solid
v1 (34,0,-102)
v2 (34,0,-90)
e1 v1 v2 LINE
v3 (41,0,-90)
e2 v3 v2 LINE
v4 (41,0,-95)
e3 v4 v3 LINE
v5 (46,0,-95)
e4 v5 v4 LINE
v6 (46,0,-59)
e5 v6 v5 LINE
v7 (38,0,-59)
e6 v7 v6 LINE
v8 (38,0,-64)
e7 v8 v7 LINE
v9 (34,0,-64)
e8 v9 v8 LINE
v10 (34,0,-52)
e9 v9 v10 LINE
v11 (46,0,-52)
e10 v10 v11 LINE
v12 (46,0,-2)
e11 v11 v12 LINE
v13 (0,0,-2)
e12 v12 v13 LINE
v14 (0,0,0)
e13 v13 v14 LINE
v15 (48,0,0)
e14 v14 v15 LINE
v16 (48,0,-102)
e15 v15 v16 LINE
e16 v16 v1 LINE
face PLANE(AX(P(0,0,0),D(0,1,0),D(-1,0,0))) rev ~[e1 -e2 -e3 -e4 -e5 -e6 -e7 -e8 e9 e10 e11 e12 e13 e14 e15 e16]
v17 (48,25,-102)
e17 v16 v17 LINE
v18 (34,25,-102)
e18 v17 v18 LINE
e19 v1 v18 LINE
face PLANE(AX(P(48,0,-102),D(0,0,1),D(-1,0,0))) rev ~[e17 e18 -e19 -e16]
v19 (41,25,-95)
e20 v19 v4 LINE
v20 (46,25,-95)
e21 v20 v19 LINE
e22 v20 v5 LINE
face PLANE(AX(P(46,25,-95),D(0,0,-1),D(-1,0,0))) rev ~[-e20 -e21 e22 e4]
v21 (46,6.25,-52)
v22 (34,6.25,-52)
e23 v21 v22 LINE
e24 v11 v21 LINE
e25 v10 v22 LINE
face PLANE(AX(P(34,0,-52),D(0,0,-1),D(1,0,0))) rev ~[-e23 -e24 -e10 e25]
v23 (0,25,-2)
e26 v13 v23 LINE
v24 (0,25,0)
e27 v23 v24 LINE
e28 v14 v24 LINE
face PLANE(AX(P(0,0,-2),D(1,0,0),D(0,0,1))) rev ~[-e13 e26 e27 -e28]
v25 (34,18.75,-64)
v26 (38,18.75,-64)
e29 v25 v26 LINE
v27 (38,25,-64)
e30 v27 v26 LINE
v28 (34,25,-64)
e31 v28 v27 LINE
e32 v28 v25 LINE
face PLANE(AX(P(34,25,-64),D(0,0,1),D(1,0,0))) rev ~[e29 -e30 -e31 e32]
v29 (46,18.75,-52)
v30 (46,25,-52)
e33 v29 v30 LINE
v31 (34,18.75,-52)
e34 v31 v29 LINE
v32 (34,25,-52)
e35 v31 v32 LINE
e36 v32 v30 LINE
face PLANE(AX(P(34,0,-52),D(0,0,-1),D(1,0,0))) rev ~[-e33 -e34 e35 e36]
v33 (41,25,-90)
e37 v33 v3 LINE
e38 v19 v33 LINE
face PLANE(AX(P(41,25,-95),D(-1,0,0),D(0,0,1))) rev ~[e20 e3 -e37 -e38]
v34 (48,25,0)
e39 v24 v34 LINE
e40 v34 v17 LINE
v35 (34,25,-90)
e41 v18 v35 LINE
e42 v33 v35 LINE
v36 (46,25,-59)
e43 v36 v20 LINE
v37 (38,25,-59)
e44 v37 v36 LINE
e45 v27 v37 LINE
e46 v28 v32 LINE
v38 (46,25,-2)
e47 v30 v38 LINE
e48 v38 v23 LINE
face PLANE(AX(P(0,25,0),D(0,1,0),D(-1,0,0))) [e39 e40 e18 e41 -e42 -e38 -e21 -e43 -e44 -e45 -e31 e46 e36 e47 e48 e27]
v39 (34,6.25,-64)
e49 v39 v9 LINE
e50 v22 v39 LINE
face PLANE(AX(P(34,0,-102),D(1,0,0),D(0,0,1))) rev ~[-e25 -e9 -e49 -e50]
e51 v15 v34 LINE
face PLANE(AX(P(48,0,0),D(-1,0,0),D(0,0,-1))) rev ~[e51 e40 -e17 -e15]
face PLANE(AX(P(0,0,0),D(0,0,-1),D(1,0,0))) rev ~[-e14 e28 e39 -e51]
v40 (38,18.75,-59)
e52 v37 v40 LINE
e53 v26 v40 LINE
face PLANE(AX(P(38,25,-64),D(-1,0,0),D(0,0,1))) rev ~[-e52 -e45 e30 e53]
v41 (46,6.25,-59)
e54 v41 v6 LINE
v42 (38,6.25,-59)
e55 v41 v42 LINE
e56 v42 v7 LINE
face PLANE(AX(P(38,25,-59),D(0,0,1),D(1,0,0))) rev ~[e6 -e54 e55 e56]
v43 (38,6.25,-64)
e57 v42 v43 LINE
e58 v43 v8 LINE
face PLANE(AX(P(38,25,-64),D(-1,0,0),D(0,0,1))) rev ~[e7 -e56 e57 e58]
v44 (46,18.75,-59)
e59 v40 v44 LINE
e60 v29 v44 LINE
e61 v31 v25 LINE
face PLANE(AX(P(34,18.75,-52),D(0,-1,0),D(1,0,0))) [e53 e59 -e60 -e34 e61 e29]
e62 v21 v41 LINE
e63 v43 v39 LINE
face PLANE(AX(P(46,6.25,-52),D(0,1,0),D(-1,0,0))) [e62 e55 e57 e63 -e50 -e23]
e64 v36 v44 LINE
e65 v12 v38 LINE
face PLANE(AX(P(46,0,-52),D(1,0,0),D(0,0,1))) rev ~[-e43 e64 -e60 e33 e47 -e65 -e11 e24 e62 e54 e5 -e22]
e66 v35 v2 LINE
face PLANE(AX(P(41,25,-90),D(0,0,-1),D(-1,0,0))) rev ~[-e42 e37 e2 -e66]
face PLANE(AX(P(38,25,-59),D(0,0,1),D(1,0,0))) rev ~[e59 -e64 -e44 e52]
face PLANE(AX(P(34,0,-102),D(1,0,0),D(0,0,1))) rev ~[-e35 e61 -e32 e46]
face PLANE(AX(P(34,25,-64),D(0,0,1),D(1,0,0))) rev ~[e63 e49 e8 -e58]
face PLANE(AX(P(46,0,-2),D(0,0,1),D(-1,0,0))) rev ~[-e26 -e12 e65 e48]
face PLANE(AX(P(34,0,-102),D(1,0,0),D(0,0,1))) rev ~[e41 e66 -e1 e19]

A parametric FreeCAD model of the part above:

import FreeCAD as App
import Part
import Sketcher

doc = App.newDocument("Part")
body = doc.addObject("PartDesign::Body", "Body")

sketch1 = body.newObject("Sketcher::SketchObject", "Sketch")
sketch1.AttachmentSupport = (doc.getObject("XZ_Plane"), [""])
sketch1.MapMode = "FlatFace"
sketch1.addGeometry(Part.LineSegment(App.Vector(0, -2, 0), App.Vector(0, 0, 0)), False)
sketch1.addGeometry(Part.LineSegment(App.Vector(0, 0, 0), App.Vector(48, 0, 0)), False)
sketch1.addGeometry(Part.LineSegment(App.Vector(48, 0, 0), App.Vector(48, -102, 0)), False)
sketch1.addGeometry(Part.LineSegment(App.Vector(48, -102, 0), App.Vector(34, -102, 0)), False)
sketch1.addGeometry(Part.LineSegment(App.Vector(34, -102, 0), App.Vector(34, -52, 0)), False)
sketch1.addGeometry(Part.LineSegment(App.Vector(34, -52, 0), App.Vector(46, -52, 0)), False)
sketch1.addGeometry(Part.LineSegment(App.Vector(46, -52, 0), App.Vector(46, -2, 0)), False)
sketch1.addGeometry(Part.LineSegment(App.Vector(46, -2, 0), App.Vector(0, -2, 0)), False)
sketch1.addConstraint(Sketcher.Constraint("Coincident", 0, 2, 1, 1))
sketch1.addConstraint(Sketcher.Constraint("Coincident", 1, 2, 2, 1))
sketch1.addConstraint(Sketcher.Constraint("Coincident", 2, 2, 3, 1))
sketch1.addConstraint(Sketcher.Constraint("Coincident", 3, 2, 4, 1))
sketch1.addConstraint(Sketcher.Constraint("Coincident", 4, 2, 5, 1))
sketch1.addConstraint(Sketcher.Constraint("Coincident", 5, 2, 6, 1))
sketch1.addConstraint(Sketcher.Constraint("Coincident", 6, 2, 7, 1))
sketch1.addConstraint(Sketcher.Constraint("Coincident", 7, 2, 0, 1))
sketch1.addConstraint(Sketcher.Constraint("Vertical", 0))
sketch1.addConstraint(Sketcher.Constraint("Horizontal", 1))
sketch1.addConstraint(Sketcher.Constraint("Vertical", 2))
sketch1.addConstraint(Sketcher.Constraint("Horizontal", 3))
sketch1.addConstraint(Sketcher.Constraint("Vertical", 4))
sketch1.addConstraint(Sketcher.Constraint("Horizontal", 5))
sketch1.addConstraint(Sketcher.Constraint("Vertical", 6))
sketch1.addConstraint(Sketcher.Constraint("Horizontal", 7))
sketch1.addConstraint(Sketcher.Constraint("Coincident", 0, 2, -1, 1))
sketch1.addConstraint(Sketcher.Constraint("Equal", 4, 6))
sketch1.addConstraint(Sketcher.Constraint("DistanceX", 1, 1, 1, 2, 48.0))
sketch1.addConstraint(Sketcher.Constraint("DistanceX", 5, 1, 5, 2, 12.0))
sketch1.addConstraint(Sketcher.Constraint("DistanceX", 7, 2, 7, 1, 46.0))
sketch1.addConstraint(Sketcher.Constraint("DistanceY", 0, 1, 0, 2, 2.0))
sketch1.addConstraint(Sketcher.Constraint("DistanceY", 4, 1, 4, 2, 50.0))
pad1 = body.newObject("PartDesign::Pad", "Pad")
pad1.Profile = sketch1
pad1.Length = 25
pad1.Reversed = True

sketch2 = body.newObject("Sketcher::SketchObject", "Sketch001")
sketch2.AttachmentSupport = (doc.getObject("XZ_Plane"), [""])
sketch2.MapMode = "FlatFace"
sketch2.AttachmentOffset = App.Placement(App.Vector(0, 0, -25), App.Rotation())
sketch2.addGeometry(Part.LineSegment(App.Vector(41, -90, 0), App.Vector(34, -90, 0)), False)
sketch2.addGeometry(Part.LineSegment(App.Vector(34, -90, 0), App.Vector(34, -64, 0)), False)
sketch2.addGeometry(Part.LineSegment(App.Vector(34, -64, 0), App.Vector(38, -64, 0)), False)
sketch2.addGeometry(Part.LineSegment(App.Vector(38, -64, 0), App.Vector(38, -59, 0)), False)
sketch2.addGeometry(Part.LineSegment(App.Vector(38, -59, 0), App.Vector(46, -59, 0)), False)
sketch2.addGeometry(Part.LineSegment(App.Vector(46, -59, 0), App.Vector(46, -95, 0)), False)
sketch2.addGeometry(Part.LineSegment(App.Vector(46, -95, 0), App.Vector(41, -95, 0)), False)
sketch2.addGeometry(Part.LineSegment(App.Vector(41, -95, 0), App.Vector(41, -90, 0)), False)
sketch2.addConstraint(Sketcher.Constraint("Coincident", 0, 2, 1, 1))
sketch2.addConstraint(Sketcher.Constraint("Coincident", 1, 2, 2, 1))
sketch2.addConstraint(Sketcher.Constraint("Coincident", 2, 2, 3, 1))
sketch2.addConstraint(Sketcher.Constraint("Coincident", 3, 2, 4, 1))
sketch2.addConstraint(Sketcher.Constraint("Coincident", 4, 2, 5, 1))
sketch2.addConstraint(Sketcher.Constraint("Coincident", 5, 2, 6, 1))
sketch2.addConstraint(Sketcher.Constraint("Coincident", 6, 2, 7, 1))
sketch2.addConstraint(Sketcher.Constraint("Coincident", 7, 2, 0, 1))
sketch2.addConstraint(Sketcher.Constraint("Horizontal", 0))
sketch2.addConstraint(Sketcher.Constraint("Vertical", 1))
sketch2.addConstraint(Sketcher.Constraint("Horizontal", 2))
sketch2.addConstraint(Sketcher.Constraint("Vertical", 3))
sketch2.addConstraint(Sketcher.Constraint("Horizontal", 4))
sketch2.addConstraint(Sketcher.Constraint("Vertical", 5))
sketch2.addConstraint(Sketcher.Constraint("Horizontal", 6))
sketch2.addConstraint(Sketcher.Constraint("Vertical", 7))
sketch2.addConstraint(Sketcher.Constraint("Equal", 6, 3))
sketch2.addConstraint(Sketcher.Constraint("Equal", 3, 7))
sketch2.addConstraint(Sketcher.Constraint("DistanceX", 4, 1, 4, 2, 8.0))
sketch2.addConstraint(Sketcher.Constraint("DistanceX", 6, 2, 6, 1, 5.0))
sketch2.addConstraint(Sketcher.Constraint("DistanceY", 5, 2, 5, 1, 36.0))
sketch2.addConstraint(Sketcher.Constraint("DistanceX", 0, 2, 0, 1, 7.0))
sketch2.addConstraint(Sketcher.Constraint("DistanceX", -1, 1, 0, 2, 34.0))
sketch2.addConstraint(Sketcher.Constraint("DistanceY", 0, 2, -1, 1, 90.0))
pocket1 = body.newObject("PartDesign::Pocket", "Pocket")
pocket1.Profile = sketch2
pocket1.Type = "ThroughAll"
pocket1.Reversed = True

sketch3 = body.newObject("Sketcher::SketchObject", "Sketch002")
sketch3.AttachmentSupport = (doc.getObject("XY_Plane"), [""])
sketch3.MapMode = "FlatFace"
sketch3.AttachmentOffset = App.Placement(App.Vector(0, 0, -52), App.Rotation())
sketch3.addGeometry(Part.LineSegment(App.Vector(34, 19, 0), App.Vector(34, 6, 0)), False)
sketch3.addGeometry(Part.LineSegment(App.Vector(34, 6, 0), App.Vector(46, 6, 0)), False)
sketch3.addGeometry(Part.LineSegment(App.Vector(46, 6, 0), App.Vector(46, 19, 0)), False)
sketch3.addGeometry(Part.LineSegment(App.Vector(46, 19, 0), App.Vector(34, 19, 0)), False)
sketch3.addConstraint(Sketcher.Constraint("Coincident", 0, 2, 1, 1))
sketch3.addConstraint(Sketcher.Constraint("Coincident", 1, 2, 2, 1))
sketch3.addConstraint(Sketcher.Constraint("Coincident", 2, 2, 3, 1))
sketch3.addConstraint(Sketcher.Constraint("Coincident", 3, 2, 0, 1))
sketch3.addConstraint(Sketcher.Constraint("Vertical", 0))
sketch3.addConstraint(Sketcher.Constraint("Horizontal", 1))
sketch3.addConstraint(Sketcher.Constraint("Vertical", 2))
sketch3.addConstraint(Sketcher.Constraint("Horizontal", 3))
sketch3.addConstraint(Sketcher.Constraint("DistanceY", 0, 2, 0, 1, 12.5))
sketch3.addConstraint(Sketcher.Constraint("DistanceX", 1, 1, 1, 2, 12.0))
sketch3.addConstraint(Sketcher.Constraint("DistanceX", -1, 1, 0, 2, 34.0))
sketch3.addConstraint(Sketcher.Constraint("DistanceY", -1, 1, 0, 2, 6.25))
pocket2 = body.newObject("PartDesign::Pocket", "Pocket001")
pocket2.Profile = sketch3
pocket2.Length = 12

doc.recompute()
